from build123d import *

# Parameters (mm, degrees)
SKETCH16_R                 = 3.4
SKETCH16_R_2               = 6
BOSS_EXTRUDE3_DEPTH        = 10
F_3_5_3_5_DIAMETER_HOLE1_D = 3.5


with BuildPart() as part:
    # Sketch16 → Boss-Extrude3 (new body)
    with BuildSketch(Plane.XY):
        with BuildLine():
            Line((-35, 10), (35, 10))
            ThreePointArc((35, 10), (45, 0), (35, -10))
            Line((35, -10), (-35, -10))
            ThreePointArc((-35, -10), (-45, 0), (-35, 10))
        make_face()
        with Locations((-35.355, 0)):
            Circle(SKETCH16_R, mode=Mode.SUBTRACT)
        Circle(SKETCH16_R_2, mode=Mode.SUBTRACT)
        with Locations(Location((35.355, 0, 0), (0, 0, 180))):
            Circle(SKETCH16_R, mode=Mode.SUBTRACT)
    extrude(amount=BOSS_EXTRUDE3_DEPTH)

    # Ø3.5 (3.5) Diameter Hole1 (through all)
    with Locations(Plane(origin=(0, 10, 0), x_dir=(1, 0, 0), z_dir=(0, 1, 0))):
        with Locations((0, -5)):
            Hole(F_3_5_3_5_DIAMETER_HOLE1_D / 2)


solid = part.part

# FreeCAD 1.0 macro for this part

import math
import FreeCAD as App
import Part
import Sketcher

V = App.Vector

doc = App.newDocument("Part")
body = doc.addObject("PartDesign::Body", "Body")

# Sketch on XY plane
sketch1 = body.newObject("Sketcher::SketchObject", "Sketch")
sketch1.AttachmentSupport = (doc.getObject("XY_Plane"), [""])
sketch1.MapMode = "FlatFace"
sketch1.addGeometry(Part.LineSegment(V(35, 10, 0), V(-35, 10, 0)), False)
sketch1.addGeometry(Part.ArcOfCircle(Part.Circle(V(-35, 0, 0), V(0, 0, 1), 10), math.radians(90), math.radians(270)), False)
sketch1.addGeometry(Part.LineSegment(V(-35, -10, 0), V(35, -10, 0)), False)
sketch1.addGeometry(Part.ArcOfCircle(Part.Circle(V(35, 0, 0), V(0, 0, 1), 10), math.radians(-90), math.radians(90)), False)
sketch1.addGeometry(Part.Circle(V(35.4, 0, 0), V(0, 0, 1), 3.4), False)
sketch1.addGeometry(Part.Circle(V(0, 0, 0), V(0, 0, 1), 6), False)
sketch1.addGeometry(Part.Circle(V(-35.4, 0, 0), V(0, 0, 1), 3.4), False)
sketch1.addConstraint(Sketcher.Constraint("Tangent", 0, 2, 1, 1))
sketch1.addConstraint(Sketcher.Constraint("Tangent", 1, 2, 2, 1))
sketch1.addConstraint(Sketcher.Constraint("Tangent", 2, 2, 3, 1))
sketch1.addConstraint(Sketcher.Constraint("Tangent", 3, 2, 0, 1))
sketch1.addConstraint(Sketcher.Constraint("Horizontal", 0))
sketch1.addConstraint(Sketcher.Constraint("Horizontal", 2))
sketch1.addConstraint(Sketcher.Constraint("Coincident", 5, 3, -1, 1))
sketch1.addConstraint(Sketcher.Constraint("Equal", 4, 6))
sketch1.addConstraint(Sketcher.Constraint("Symmetric", 1, 3, 3, 3, -1, 1))
sketch1.addConstraint(Sketcher.Constraint("Symmetric", 4, 3, 6, 3, -1, 1))
sketch1.addConstraint(Sketcher.Constraint("PointOnObject", 4, 3, -1))
sketch1.addConstraint(Sketcher.Constraint("Diameter", 5, 12.0))
sketch1.addConstraint(Sketcher.Constraint("Radius", 1, 10.0))
sketch1.addConstraint(Sketcher.Constraint("Diameter", 4, 6.8))
sketch1.addConstraint(Sketcher.Constraint("DistanceX", 0, 2, 0, 1, 70.0))
sketch1.addConstraint(Sketcher.Constraint("DistanceX", 6, 3, 4, 3, 70.71))
pad1 = body.newObject("PartDesign::Pad", "Pad")
pad1.Profile = sketch1
pad1.Length = 10

# Sketch on XZ plane
sketch2 = body.newObject("Sketcher::SketchObject", "Sketch001")
sketch2.AttachmentSupport = (doc.getObject("XZ_Plane"), [""])
sketch2.MapMode = "FlatFace"
sketch2.AttachmentOffset = App.Placement(V(0, 0, -10), App.Rotation())
sketch2.addGeometry(Part.Circle(V(0, 5, 0), V(0, 0, 1), 1.8), False)
sketch2.addConstraint(Sketcher.Constraint("PointOnObject", 0, 3, -2))
sketch2.addConstraint(Sketcher.Constraint("Diameter", 0, 3.5))
sketch2.addConstraint(Sketcher.Constraint("DistanceY", -1, 1, 0, 3, 5.0))
doc.recompute()
hole = body.newObject("PartDesign::Hole", "Hole")
hole.Profile = sketch2
hole.ThreadType = "None"
hole.Diameter = 3.5
hole.DepthType = "ThroughAll"
hole.Reversed = True

doc.recompute()
